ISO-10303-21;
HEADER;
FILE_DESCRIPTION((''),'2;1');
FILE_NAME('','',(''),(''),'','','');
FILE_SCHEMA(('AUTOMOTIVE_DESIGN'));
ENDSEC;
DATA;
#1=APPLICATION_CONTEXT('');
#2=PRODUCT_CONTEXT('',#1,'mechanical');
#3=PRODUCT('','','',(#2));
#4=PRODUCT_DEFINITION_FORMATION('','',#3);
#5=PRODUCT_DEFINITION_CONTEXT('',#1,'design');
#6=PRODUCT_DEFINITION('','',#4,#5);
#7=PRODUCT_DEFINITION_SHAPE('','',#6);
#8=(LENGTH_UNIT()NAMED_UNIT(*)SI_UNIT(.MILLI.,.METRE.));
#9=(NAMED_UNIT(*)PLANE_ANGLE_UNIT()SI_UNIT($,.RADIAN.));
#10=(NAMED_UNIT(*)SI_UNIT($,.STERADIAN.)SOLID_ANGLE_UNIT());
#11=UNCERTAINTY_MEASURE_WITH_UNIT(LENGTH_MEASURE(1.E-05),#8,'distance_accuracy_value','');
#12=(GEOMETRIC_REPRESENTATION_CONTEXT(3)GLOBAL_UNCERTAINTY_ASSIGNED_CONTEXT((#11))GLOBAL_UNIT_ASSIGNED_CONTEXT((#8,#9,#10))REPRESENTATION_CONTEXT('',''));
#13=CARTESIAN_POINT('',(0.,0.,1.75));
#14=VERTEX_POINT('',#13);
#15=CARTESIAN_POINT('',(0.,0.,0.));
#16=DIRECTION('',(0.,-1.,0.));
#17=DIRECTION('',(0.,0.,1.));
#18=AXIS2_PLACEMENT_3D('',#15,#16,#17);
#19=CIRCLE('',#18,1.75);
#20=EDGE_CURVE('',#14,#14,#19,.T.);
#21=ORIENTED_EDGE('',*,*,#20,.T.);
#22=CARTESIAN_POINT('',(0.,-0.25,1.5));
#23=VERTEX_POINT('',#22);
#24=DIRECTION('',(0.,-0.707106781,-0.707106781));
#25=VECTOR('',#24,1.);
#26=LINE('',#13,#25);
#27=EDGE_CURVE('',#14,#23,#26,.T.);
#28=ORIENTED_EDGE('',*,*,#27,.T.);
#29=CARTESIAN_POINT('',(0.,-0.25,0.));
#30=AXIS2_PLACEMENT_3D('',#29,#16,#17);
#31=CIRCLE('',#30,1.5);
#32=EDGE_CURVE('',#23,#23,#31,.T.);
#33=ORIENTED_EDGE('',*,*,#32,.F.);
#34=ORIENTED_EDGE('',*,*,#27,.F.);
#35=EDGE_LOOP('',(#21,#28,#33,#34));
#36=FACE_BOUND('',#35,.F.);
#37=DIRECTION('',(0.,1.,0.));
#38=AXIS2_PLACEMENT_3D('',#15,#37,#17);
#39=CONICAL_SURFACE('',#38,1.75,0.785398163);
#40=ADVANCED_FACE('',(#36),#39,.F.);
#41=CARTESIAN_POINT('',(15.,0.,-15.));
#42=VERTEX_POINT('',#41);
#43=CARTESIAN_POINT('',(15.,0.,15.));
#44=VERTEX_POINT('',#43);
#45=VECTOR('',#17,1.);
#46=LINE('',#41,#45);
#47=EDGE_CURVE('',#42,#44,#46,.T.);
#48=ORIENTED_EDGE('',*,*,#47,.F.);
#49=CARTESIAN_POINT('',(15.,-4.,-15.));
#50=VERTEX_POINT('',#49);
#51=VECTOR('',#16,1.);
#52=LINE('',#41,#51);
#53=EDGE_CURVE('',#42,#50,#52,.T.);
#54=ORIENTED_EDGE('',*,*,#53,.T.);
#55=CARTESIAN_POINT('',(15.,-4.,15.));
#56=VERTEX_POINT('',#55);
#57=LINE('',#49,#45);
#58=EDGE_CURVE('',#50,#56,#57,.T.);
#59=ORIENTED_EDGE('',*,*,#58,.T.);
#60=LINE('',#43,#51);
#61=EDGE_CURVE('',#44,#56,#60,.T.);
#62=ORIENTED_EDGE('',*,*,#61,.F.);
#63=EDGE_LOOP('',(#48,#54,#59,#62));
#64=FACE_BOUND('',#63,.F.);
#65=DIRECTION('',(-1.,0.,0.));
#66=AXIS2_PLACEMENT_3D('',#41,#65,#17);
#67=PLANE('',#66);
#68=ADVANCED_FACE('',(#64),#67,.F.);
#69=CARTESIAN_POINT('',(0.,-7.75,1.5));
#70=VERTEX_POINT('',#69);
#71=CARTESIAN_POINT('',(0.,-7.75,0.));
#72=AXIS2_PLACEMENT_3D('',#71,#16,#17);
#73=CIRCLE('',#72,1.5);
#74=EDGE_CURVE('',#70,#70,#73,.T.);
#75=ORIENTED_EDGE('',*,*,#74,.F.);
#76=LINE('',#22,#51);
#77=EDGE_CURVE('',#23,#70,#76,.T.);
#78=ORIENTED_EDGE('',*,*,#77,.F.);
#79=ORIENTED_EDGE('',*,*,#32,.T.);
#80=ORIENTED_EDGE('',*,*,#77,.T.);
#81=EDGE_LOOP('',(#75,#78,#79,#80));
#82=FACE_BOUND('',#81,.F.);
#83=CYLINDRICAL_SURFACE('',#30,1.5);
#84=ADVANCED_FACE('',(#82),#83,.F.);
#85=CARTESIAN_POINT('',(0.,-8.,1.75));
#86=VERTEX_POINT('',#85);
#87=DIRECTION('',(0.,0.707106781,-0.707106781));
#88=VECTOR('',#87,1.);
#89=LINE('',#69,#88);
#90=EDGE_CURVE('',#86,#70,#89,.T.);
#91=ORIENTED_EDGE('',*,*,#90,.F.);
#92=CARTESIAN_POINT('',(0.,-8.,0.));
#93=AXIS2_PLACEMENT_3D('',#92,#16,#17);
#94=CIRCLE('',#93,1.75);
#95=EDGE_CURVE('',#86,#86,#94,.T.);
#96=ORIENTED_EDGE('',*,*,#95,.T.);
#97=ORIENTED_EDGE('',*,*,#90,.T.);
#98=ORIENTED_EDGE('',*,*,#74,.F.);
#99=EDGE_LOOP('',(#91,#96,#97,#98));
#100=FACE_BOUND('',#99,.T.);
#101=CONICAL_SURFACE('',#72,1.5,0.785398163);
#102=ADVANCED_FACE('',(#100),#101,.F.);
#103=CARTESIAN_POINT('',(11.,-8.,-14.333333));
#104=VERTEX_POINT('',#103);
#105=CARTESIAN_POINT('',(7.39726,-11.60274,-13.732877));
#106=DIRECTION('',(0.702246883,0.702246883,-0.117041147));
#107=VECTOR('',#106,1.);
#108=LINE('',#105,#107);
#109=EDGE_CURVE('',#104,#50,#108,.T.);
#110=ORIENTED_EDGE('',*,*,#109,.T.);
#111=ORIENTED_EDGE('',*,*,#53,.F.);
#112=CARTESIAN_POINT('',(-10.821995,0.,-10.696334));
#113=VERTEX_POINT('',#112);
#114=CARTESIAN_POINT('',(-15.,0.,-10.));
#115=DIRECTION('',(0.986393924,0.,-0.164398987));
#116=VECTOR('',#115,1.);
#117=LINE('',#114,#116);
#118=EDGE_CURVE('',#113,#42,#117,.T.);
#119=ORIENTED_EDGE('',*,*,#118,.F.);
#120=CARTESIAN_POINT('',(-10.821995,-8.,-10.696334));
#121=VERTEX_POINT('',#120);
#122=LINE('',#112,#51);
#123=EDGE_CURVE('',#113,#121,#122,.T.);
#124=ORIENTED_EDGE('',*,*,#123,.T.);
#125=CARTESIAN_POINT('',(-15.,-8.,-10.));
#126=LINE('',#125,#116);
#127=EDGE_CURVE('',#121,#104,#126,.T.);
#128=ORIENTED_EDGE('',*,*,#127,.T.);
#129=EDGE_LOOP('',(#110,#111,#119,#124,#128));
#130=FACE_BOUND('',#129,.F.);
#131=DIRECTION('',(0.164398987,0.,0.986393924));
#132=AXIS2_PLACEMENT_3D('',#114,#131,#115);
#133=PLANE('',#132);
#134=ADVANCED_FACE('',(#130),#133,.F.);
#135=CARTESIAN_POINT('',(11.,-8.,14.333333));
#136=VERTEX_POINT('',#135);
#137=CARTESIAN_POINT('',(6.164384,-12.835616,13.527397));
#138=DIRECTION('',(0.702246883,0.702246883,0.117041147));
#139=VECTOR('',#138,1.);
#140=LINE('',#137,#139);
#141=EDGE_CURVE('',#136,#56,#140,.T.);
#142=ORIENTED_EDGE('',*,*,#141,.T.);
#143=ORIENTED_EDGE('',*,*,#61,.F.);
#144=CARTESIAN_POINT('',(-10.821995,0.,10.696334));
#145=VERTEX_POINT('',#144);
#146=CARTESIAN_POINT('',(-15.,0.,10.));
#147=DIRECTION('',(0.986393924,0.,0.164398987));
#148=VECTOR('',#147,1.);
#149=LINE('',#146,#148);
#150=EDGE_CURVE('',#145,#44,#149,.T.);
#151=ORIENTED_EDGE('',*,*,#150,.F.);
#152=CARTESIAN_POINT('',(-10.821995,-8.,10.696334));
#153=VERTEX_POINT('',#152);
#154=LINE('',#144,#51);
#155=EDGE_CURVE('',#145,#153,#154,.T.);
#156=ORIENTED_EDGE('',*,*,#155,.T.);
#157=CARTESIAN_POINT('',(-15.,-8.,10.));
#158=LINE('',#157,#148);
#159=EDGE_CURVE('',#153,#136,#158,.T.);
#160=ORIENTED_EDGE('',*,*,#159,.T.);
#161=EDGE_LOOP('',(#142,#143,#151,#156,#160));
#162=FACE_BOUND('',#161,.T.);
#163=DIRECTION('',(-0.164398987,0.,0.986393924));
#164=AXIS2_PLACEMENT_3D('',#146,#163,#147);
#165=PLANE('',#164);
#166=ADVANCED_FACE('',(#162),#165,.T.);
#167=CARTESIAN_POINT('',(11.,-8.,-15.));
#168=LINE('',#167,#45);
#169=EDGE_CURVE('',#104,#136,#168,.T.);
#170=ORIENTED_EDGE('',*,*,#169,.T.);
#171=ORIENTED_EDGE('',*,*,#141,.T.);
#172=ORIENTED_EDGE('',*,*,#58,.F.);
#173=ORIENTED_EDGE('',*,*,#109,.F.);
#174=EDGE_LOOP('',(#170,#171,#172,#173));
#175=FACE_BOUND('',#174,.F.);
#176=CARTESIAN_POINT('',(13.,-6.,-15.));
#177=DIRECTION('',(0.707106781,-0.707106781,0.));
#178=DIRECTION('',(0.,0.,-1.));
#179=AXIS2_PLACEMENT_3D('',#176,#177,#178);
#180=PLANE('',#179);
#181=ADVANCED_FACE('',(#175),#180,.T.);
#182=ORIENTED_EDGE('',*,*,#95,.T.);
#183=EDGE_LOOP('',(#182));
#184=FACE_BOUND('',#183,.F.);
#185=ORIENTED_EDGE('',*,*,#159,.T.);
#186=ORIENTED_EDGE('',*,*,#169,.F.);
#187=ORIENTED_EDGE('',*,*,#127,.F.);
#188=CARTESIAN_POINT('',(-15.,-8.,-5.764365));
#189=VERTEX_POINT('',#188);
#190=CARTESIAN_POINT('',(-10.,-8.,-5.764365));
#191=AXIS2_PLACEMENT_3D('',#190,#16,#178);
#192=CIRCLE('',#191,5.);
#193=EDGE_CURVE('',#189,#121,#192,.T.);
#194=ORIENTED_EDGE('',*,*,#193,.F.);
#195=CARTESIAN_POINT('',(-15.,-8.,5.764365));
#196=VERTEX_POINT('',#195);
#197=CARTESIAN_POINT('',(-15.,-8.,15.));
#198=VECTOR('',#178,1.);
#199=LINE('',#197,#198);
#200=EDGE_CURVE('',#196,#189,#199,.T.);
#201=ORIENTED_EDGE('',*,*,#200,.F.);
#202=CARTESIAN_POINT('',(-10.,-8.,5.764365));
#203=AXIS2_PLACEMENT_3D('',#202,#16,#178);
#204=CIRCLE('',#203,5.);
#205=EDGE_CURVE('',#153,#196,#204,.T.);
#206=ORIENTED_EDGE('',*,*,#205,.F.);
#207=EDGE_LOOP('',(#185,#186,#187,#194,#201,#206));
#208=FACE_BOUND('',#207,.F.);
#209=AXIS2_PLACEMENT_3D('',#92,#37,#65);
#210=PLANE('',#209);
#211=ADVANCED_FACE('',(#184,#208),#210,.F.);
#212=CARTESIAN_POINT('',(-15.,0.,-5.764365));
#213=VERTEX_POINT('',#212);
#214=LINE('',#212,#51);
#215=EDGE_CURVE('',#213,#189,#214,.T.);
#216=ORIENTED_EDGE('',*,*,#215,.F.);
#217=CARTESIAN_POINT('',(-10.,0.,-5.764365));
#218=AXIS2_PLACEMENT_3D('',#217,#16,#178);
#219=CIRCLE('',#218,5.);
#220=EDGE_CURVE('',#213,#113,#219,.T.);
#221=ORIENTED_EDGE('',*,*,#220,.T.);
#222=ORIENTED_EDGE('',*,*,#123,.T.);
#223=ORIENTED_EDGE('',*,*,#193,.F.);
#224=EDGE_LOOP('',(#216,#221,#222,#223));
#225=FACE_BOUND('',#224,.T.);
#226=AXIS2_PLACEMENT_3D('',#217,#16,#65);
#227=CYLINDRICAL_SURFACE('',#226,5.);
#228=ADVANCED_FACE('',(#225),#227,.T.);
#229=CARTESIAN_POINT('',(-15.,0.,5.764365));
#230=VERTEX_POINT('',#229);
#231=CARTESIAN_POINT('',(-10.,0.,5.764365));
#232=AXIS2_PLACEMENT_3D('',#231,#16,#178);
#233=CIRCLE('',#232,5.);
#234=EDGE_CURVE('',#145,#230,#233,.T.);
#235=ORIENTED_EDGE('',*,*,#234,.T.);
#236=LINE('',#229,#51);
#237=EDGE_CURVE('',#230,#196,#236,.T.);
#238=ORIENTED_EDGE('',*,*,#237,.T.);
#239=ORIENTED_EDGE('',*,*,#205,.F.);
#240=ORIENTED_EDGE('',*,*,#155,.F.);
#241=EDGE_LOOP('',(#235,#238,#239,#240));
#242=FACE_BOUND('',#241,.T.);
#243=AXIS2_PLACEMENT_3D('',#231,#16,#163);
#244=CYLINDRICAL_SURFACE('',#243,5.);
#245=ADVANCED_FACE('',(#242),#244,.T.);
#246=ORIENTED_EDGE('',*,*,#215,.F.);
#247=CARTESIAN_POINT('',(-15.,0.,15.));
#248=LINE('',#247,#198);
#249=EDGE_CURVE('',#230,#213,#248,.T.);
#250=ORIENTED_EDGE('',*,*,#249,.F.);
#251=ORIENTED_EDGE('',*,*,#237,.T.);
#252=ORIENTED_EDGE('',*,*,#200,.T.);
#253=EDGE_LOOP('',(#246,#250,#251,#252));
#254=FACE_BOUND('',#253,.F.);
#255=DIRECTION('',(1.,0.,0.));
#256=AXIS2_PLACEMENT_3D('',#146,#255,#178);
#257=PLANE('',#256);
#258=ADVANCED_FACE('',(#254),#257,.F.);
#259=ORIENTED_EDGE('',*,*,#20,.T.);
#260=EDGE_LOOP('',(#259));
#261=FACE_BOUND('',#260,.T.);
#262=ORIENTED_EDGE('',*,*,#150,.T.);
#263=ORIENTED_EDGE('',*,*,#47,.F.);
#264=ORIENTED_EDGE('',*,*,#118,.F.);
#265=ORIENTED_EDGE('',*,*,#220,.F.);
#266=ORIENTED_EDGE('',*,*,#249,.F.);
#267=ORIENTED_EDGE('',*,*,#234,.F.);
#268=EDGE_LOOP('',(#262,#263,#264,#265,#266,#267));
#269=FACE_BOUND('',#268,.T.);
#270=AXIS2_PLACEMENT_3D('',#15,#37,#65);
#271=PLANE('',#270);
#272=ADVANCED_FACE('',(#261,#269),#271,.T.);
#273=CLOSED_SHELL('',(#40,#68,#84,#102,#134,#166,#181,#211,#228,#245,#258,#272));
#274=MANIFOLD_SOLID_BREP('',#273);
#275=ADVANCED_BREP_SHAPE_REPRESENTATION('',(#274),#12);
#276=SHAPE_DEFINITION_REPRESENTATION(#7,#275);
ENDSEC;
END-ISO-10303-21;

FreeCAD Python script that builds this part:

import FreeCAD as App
import Part
import Sketcher

V = App.Vector


def edges_at(feature, points):
    """Names of the edges that pass closest to the given points."""
    edges = feature.Shape.Edges
    near = lambda p: min(range(len(edges)), key=lambda i: edges[i].distToShape(Part.Vertex(*p))[0])
    return sorted({f"Edge{near(p) + 1}" for p in points})

doc = App.newDocument("Part")
params = doc.addObject("Spreadsheet::Sheet", "Params")
for row, (alias, value) in enumerate([
    ("sketch1_height", "30 mm"),
    ("sketch1_height2", "20 mm"),
    ("pad1_length", "8 mm"),
    ("sketch2_diameter", "3 mm"),
    ("hole_diameter", "3 mm"),
    ("hole_csink_diameter", "3.5 mm"),
    ("chamfer_size", "0.25 mm"),
    ("fillet_radius", "5 mm"),
    ("chamfer2_size", "4 mm"),
], start=1):
    params.set(f"A{row}", alias)
    params.set(f"B{row}", "=" + value)
    params.setAlias(f"B{row}", alias)

body = doc.addObject("PartDesign::Body", "Body")

sketch1 = body.newObject("Sketcher::SketchObject", "Sketch")
sketch1.AttachmentSupport = (doc.getObject("XZ_Plane"), [""])
sketch1.MapMode = "FlatFace"
sketch1.addGeometry([
    Part.LineSegment(V(-15, 10, 0), V(15, 15, 0)),
    Part.LineSegment(V(15, 15, 0), V(15, -15, 0)),
    Part.LineSegment(V(15, -15, 0), V(-15, -10, 0)),
    Part.LineSegment(V(-15, -10, 0), V(-15, 10, 0)),
], False)
sketch1.addConstraint([
    Sketcher.Constraint("Coincident", 0, 2, 1, 1),
    Sketcher.Constraint("Coincident", 1, 2, 2, 1),
    Sketcher.Constraint("Coincident", 2, 2, 3, 1),
    Sketcher.Constraint("Coincident", 3, 2, 0, 1),
    Sketcher.Constraint("Vertical", 1),
    Sketcher.Constraint("Vertical", 3),
    Sketcher.Constraint("Equal", 0, 2),
    Sketcher.Constraint("DistanceY", 1, 2, 1, 1, 30.0),
    Sketcher.Constraint("DistanceY", 3, 1, 3, 2, 20.0),
    Sketcher.Constraint("DistanceX", 2, 2, 1, 2, 30.0),
    Sketcher.Constraint("DistanceX", -1, 1, 0, 2, 15.0),
    Sketcher.Constraint("DistanceY", -1, 1, 0, 2, 15.0),
])
sketch1.setExpression("Constraints[7]", "Params.sketch1_height")
sketch1.setExpression("Constraints[8]", "Params.sketch1_height2")
pad1 = body.newObject("PartDesign::Pad", "Pad")
pad1.Profile = sketch1
pad1.setExpression("Length", "Params.pad1_length")

sketch2 = body.newObject("Sketcher::SketchObject", "Sketch001")
sketch2.AttachmentSupport = (doc.getObject("XZ_Plane"), [""])
sketch2.MapMode = "FlatFace"
sketch2.addGeometry(Part.Circle(V(0, 0, 0), V(0, 0, 1), 1.5), False)
sketch2.addConstraint([
    Sketcher.Constraint("Coincident", 0, 3, -1, 1),
    Sketcher.Constraint("Diameter", 0, 3.0),
])
sketch2.setExpression("Constraints[1]", "Params.sketch2_diameter")
doc.recompute()
hole = body.newObject("PartDesign::Hole", "Hole")
hole.Profile = sketch2
hole.ThreadType = "None"
hole.setExpression("Diameter", "Params.hole_diameter")
hole.DepthType = "ThroughAll"
hole.HoleCutType = "Countersink"
hole.setExpression("HoleCutDiameter", "Params.hole_csink_diameter")
hole.HoleCutCountersinkAngle = 90
hole.Reversed = True
doc.recompute()

chamfer = body.newObject("PartDesign::Chamfer", "Chamfer")
chamfer.Base = (hole, edges_at(hole, [(0, -8, -1.5)]))
chamfer.setExpression("Size", "Params.chamfer_size")
doc.recompute()

fillet = body.newObject("PartDesign::Fillet", "Fillet")
fillet.Base = (chamfer, edges_at(chamfer, [(-15, -4, 10), (-15, -4, -10)]))
fillet.setExpression("Radius", "Params.fillet_radius")
doc.recompute()

chamfer2 = body.newObject("PartDesign::Chamfer", "Chamfer001")
chamfer2.Base = (fillet, edges_at(fillet, [(15, -8, 0)]))
chamfer2.setExpression("Size", "Params.chamfer2_size")

doc.recompute()
